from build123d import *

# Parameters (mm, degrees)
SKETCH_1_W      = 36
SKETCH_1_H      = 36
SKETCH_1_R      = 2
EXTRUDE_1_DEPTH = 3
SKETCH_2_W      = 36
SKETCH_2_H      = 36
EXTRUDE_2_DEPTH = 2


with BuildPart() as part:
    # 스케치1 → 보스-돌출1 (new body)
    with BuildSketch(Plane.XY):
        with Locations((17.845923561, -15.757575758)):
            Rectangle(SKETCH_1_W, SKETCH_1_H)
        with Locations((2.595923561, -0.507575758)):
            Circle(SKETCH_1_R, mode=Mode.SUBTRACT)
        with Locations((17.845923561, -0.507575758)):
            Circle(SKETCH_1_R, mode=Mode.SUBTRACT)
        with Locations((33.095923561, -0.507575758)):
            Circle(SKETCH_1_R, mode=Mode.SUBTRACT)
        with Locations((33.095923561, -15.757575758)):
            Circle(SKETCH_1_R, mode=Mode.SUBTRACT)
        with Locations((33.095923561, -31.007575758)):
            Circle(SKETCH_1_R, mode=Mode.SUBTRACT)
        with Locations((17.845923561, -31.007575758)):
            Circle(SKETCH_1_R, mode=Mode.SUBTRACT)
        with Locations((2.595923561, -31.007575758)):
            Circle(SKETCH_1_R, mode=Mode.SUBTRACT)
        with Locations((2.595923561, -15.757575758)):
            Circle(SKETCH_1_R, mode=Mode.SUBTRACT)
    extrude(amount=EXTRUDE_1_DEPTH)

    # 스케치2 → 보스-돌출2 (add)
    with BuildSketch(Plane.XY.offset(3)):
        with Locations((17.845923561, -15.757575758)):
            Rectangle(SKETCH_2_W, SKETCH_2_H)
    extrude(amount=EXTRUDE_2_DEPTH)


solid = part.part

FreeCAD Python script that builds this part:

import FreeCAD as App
import Part
import Sketcher
Q = App.Units.Quantity


def add_polygon(sketch, points):
    """Adds a closed chain of lines whose ends are joined by coincident constraints."""
    first, n = sketch.GeometryCount, len(points)
    for a, b in zip(points, points[1:] + points[:1]):
        sketch.addGeometry(Part.LineSegment(App.Vector(*a, 0), App.Vector(*b, 0)), False)
    for i in range(n):
        sketch.addConstraint(Sketcher.Constraint("Coincident", first + i, 2, first + (i + 1) % n, 1))

doc = App.newDocument("Part")
params = doc.addObject("Spreadsheet::Sheet", "Params")
for row, (alias, value) in enumerate([
    ("sketch1_diameter", "4 mm"),
    ("sketch1_width", "36 mm"),
    ("pad1_length", "3 mm"),
    ("sketch2_width", "36 mm"),
    ("pad2_length", "2 mm"),
], start=1):
    params.set(f"A{row}", alias)
    params.set(f"B{row}", "=" + value)
    params.setAlias(f"B{row}", alias)

body = doc.addObject("PartDesign::Body", "Body")

# Sketch on XY plane
sketch1 = body.newObject("Sketcher::SketchObject", "Sketch")
sketch1.AttachmentSupport = (doc.getObject("XY_Plane"), [""])
sketch1.MapMode = "FlatFace"
add_polygon(sketch1, [(-0.154076, 2.242424), (-0.154076, -33.757576), (35.845924, -33.757576), (35.845924, 2.242424)])  # lines 0-3
sketch1.addGeometry(Part.Circle(App.Vector(2.595924, -31.007576, 0), App.Vector(0, 0, 1), 2), False)  # 4
sketch1.addGeometry(Part.Circle(App.Vector(17.845924, -31.007576, 0), App.Vector(0, 0, 1), 2), False)  # 5
sketch1.addGeometry(Part.Circle(App.Vector(33.095924, -31.007576, 0), App.Vector(0, 0, 1), 2), False)  # 6
sketch1.addGeometry(Part.Circle(App.Vector(2.595924, -15.757576, 0), App.Vector(0, 0, 1), 2), False)  # 7
sketch1.addGeometry(Part.Circle(App.Vector(2.595924, -0.507576, 0), App.Vector(0, 0, 1), 2), False)  # 8
sketch1.addGeometry(Part.Circle(App.Vector(33.095924, -15.757576, 0), App.Vector(0, 0, 1), 2), False)  # 9
sketch1.addGeometry(Part.Circle(App.Vector(17.845924, -0.507576, 0), App.Vector(0, 0, 1), 2), False)  # 10
sketch1.addGeometry(Part.Circle(App.Vector(33.095924, -0.507576, 0), App.Vector(0, 0, 1), 2), False)  # 11
sketch1.addConstraint(Sketcher.Constraint("Vertical", 0))
sketch1.addConstraint(Sketcher.Constraint("Horizontal", 1))
sketch1.addConstraint(Sketcher.Constraint("Vertical", 2))
sketch1.addConstraint(Sketcher.Constraint("Horizontal", 3))
sketch1.addConstraint(Sketcher.Constraint("Equal", 4, 5))
sketch1.addConstraint(Sketcher.Constraint("Equal", 5, 6))
sketch1.addConstraint(Sketcher.Constraint("Equal", 6, 7))
sketch1.addConstraint(Sketcher.Constraint("Equal", 7, 8))
sketch1.addConstraint(Sketcher.Constraint("Equal", 8, 9))
sketch1.addConstraint(Sketcher.Constraint("Equal", 9, 10))
sketch1.addConstraint(Sketcher.Constraint("Equal", 10, 11))
sketch1.addConstraint(Sketcher.Constraint("Horizontal", 4, 3, 5, 3))
sketch1.addConstraint(Sketcher.Constraint("Horizontal", 5, 3, 6, 3))
sketch1.addConstraint(Sketcher.Constraint("Horizontal", 7, 3, 9, 3))
sketch1.addConstraint(Sketcher.Constraint("Horizontal", 8, 3, 10, 3))
sketch1.addConstraint(Sketcher.Constraint("Horizontal", 10, 3, 11, 3))
sketch1.addConstraint(Sketcher.Constraint("Vertical", 4, 3, 7, 3))
sketch1.addConstraint(Sketcher.Constraint("Vertical", 7, 3, 8, 3))
sketch1.addConstraint(Sketcher.Constraint("Vertical", 6, 3, 9, 3))
sketch1.addConstraint(Sketcher.Constraint("Vertical", 5, 3, 10, 3))
sketch1.addConstraint(Sketcher.Constraint("Vertical", 9, 3, 11, 3))
sketch1.addConstraint(Sketcher.Constraint("Equal", 3, 0))
sketch1.addConstraint(Sketcher.Constraint("Diameter", 4, Q("4 mm")))
sketch1.addConstraint(Sketcher.Constraint("DistanceX", 1, 1, 1, 2, Q("36 mm")))
sketch1.addConstraint(Sketcher.Constraint("DistanceX", 0, 2, 5, 3, Q("18 mm")))
sketch1.addConstraint(Sketcher.Constraint("DistanceY", 0, 2, 7, 3, Q("18 mm")))
sketch1.addConstraint(Sketcher.Constraint("DistanceX", 4, 3, 6, 3, Q("30.5 mm")))
sketch1.addConstraint(Sketcher.Constraint("DistanceY", 4, 3, 8, 3, Q("30.5 mm")))
sketch1.addConstraint(Sketcher.Constraint("DistanceX", 4, 3, 5, 3, Q("15.25 mm")))
sketch1.addConstraint(Sketcher.Constraint("DistanceY", 4, 3, 7, 3, Q("15.25 mm")))
sketch1.addConstraint(Sketcher.Constraint("DistanceX", -1, 1, 4, 3, Q("2.595924 mm")))
sketch1.addConstraint(Sketcher.Constraint("DistanceY", 4, 3, -1, 1, Q("31.007576 mm")))
sketch1.setExpression("Constraints[26]", "Params.sketch1_diameter")
sketch1.setExpression("Constraints[27]", "Params.sketch1_width")
pad1 = body.newObject("PartDesign::Pad", "Pad")
pad1.Profile = sketch1
pad1.setExpression("Length", "Params.pad1_length")

# Sketch on XY plane
sketch2 = body.newObject("Sketcher::SketchObject", "Sketch001")
sketch2.AttachmentSupport = (doc.getObject("XY_Plane"), [""])
sketch2.MapMode = "FlatFace"
sketch2.AttachmentOffset = App.Placement(App.Vector(0, 0, 3), App.Rotation())
add_polygon(sketch2, [(-0.154076, 2.242424), (-0.154076, -33.757576), (35.845924, -33.757576), (35.845924, 2.242424)])  # lines 0-3
sketch2.addConstraint(Sketcher.Constraint("Vertical", 0))
sketch2.addConstraint(Sketcher.Constraint("Horizontal", 1))
sketch2.addConstraint(Sketcher.Constraint("Vertical", 2))
sketch2.addConstraint(Sketcher.Constraint("Horizontal", 3))
sketch2.addConstraint(Sketcher.Constraint("Equal", 3, 0))
sketch2.addConstraint(Sketcher.Constraint("DistanceX", 1, 1, 1, 2, Q("36 mm")))
sketch2.addConstraint(Sketcher.Constraint("DistanceX", 0, 2, -1, 1, Q("0.154076 mm")))
sketch2.addConstraint(Sketcher.Constraint("DistanceY", 0, 2, -1, 1, Q("33.757576 mm")))
sketch2.setExpression("Constraints[9]", "Params.sketch2_width")
pad2 = body.newObject("PartDesign::Pad", "Pad001")
pad2.Profile = sketch2
pad2.setExpression("Length", "Params.pad2_length")

doc.recompute()
